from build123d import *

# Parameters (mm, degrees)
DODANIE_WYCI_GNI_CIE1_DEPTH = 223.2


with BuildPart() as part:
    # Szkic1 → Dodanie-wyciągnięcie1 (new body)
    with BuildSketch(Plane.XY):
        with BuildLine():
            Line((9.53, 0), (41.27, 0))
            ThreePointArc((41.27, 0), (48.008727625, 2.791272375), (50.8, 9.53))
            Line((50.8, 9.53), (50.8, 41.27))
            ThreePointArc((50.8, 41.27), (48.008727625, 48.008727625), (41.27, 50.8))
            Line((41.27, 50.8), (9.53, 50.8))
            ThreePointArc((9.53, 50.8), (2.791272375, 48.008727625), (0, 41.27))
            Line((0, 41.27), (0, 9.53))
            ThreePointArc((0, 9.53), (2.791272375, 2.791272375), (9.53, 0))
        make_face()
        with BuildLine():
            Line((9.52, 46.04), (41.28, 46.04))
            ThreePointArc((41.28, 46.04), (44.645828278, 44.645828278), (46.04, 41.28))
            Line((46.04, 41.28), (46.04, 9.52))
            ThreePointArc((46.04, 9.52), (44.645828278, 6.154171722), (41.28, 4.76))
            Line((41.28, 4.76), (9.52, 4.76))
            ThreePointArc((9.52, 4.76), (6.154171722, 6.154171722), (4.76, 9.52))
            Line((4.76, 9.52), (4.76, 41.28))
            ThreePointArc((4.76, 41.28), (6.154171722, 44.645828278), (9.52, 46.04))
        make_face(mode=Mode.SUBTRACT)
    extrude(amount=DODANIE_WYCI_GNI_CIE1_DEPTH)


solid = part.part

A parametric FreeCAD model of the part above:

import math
import FreeCAD as App
import Part
import Sketcher

V = App.Vector
Q = App.Units.Quantity

doc = App.newDocument("Part")
params = doc.addObject("Spreadsheet::Sheet", "Params")
for row, (alias, value) in enumerate([
    ("sketch1_radius", "9.53 mm"),
    ("sketch1_radius2", "4.76 mm"),
    ("sketch1_width", "31.74 mm"),
    ("sketch1_width2", "31.76 mm"),
    ("pad1_length", "223.2 mm"),
], start=1):
    params.set(f"A{row}", alias)
    params.set(f"B{row}", "=" + value)
    params.setAlias(f"B{row}", alias)

body = doc.addObject("PartDesign::Body", "Body")

# Sketch on XY plane
sketch1 = body.newObject("Sketcher::SketchObject", "Sketch")
sketch1.AttachmentSupport = (doc.getObject("XY_Plane"), [""])
sketch1.MapMode = "FlatFace"
sketch1.addGeometry([
    Part.LineSegment(V(9.5, 0, 0), V(41.3, 0, 0)),  # 0
    Part.ArcOfCircle(Part.Circle(V(41.3, 9.5, 0), V(0, 0, 1), 9.5), math.radians(-90), math.radians(0)),  # 1
    Part.LineSegment(V(50.8, 9.5, 0), V(50.8, 41.3, 0)),  # 2
    Part.ArcOfCircle(Part.Circle(V(41.3, 41.3, 0), V(0, 0, 1), 9.5), math.radians(0), math.radians(90)),  # 3
    Part.LineSegment(V(41.3, 50.8, 0), V(9.5, 50.8, 0)),  # 4
    Part.ArcOfCircle(Part.Circle(V(9.5, 41.3, 0), V(0, 0, 1), 9.5), math.radians(90), math.radians(180)),  # 5
    Part.LineSegment(V(0, 41.3, 0), V(0, 9.5, 0)),  # 6
    Part.ArcOfCircle(Part.Circle(V(9.5, 9.5, 0), V(0, 0, 1), 9.5), math.radians(180), math.radians(270)),  # 7
    Part.ArcOfCircle(Part.Circle(V(9.5, 41.3, 0), V(0, 0, 1), 4.8), math.radians(90), math.radians(180)),  # 8
    Part.LineSegment(V(9.5, 46, 0), V(41.3, 46, 0)),  # 9
    Part.ArcOfCircle(Part.Circle(V(41.3, 41.3, 0), V(0, 0, 1), 4.8), math.radians(0), math.radians(90)),  # 10
    Part.LineSegment(V(46, 41.3, 0), V(46, 9.5, 0)),  # 11
    Part.ArcOfCircle(Part.Circle(V(41.3, 9.5, 0), V(0, 0, 1), 4.8), math.radians(-90), math.radians(0)),  # 12
    Part.LineSegment(V(41.3, 4.8, 0), V(9.5, 4.8, 0)),  # 13
    Part.ArcOfCircle(Part.Circle(V(9.5, 9.5, 0), V(0, 0, 1), 4.8), math.radians(-180), math.radians(-90)),  # 14
    Part.LineSegment(V(4.8, 9.5, 0), V(4.8, 41.3, 0)),  # 15
], False)
sketch1.addConstraint([
    Sketcher.Constraint("Tangent", 0, 2, 1, 1),
    Sketcher.Constraint("Tangent", 1, 2, 2, 1),
    Sketcher.Constraint("Tangent", 2, 2, 3, 1),
    Sketcher.Constraint("Tangent", 3, 2, 4, 1),
    Sketcher.Constraint("Tangent", 4, 2, 5, 1),
    Sketcher.Constraint("Tangent", 5, 2, 6, 1),
    Sketcher.Constraint("Tangent", 6, 2, 7, 1),
    Sketcher.Constraint("Tangent", 7, 2, 0, 1),
    Sketcher.Constraint("Tangent", 8, 1, 9, 1),
    Sketcher.Constraint("Tangent", 9, 2, 10, 2),
    Sketcher.Constraint("Tangent", 10, 1, 11, 1),
    Sketcher.Constraint("Tangent", 11, 2, 12, 2),
    Sketcher.Constraint("Tangent", 12, 1, 13, 1),
    Sketcher.Constraint("Tangent", 13, 2, 14, 2),
    Sketcher.Constraint("Tangent", 14, 1, 15, 1),
    Sketcher.Constraint("Tangent", 15, 2, 8, 2),
    Sketcher.Constraint("Horizontal", 0),
    Sketcher.Constraint("Vertical", 2),
    Sketcher.Constraint("Horizontal", 4),
    Sketcher.Constraint("Vertical", 6),
    Sketcher.Constraint("Horizontal", 9),
    Sketcher.Constraint("Vertical", 11),
    Sketcher.Constraint("Horizontal", 13),
    Sketcher.Constraint("Vertical", 15),
    Sketcher.Constraint("Equal", 1, 3),
    Sketcher.Constraint("Equal", 3, 5),
    Sketcher.Constraint("Equal", 5, 7),
    Sketcher.Constraint("Equal", 8, 10),
    Sketcher.Constraint("Equal", 10, 12),
    Sketcher.Constraint("Equal", 12, 14),
    Sketcher.Constraint("PointOnObject", 0, 2, -1),
    Sketcher.Constraint("PointOnObject", 5, 2, -2),
    Sketcher.Constraint("Equal", 4, 2),
    Sketcher.Constraint("Equal", 13, 11),
    Sketcher.Constraint("Radius", 1, Q("9.53 mm")),
    Sketcher.Constraint("Radius", 8, Q("4.76 mm")),
    Sketcher.Constraint("DistanceX", 0, 1, 0, 2, Q("31.74 mm")),
    Sketcher.Constraint("DistanceX", 9, 1, 9, 2, Q("31.76 mm")),
    Sketcher.Constraint("DistanceX", -1, 1, 8, 3, Q("9.52 mm")),
    Sketcher.Constraint("DistanceY", -1, 1, 8, 3, Q("41.28 mm")),
])
sketch1.setExpression("Constraints[34]", "Params.sketch1_radius")
sketch1.setExpression("Constraints[35]", "Params.sketch1_radius2")
sketch1.setExpression("Constraints[36]", "Params.sketch1_width")
sketch1.setExpression("Constraints[37]", "Params.sketch1_width2")
pad1 = body.newObject("PartDesign::Pad", "Pad")
pad1.Profile = sketch1
pad1.setExpression("Length", "Params.pad1_length")

doc.recompute()
